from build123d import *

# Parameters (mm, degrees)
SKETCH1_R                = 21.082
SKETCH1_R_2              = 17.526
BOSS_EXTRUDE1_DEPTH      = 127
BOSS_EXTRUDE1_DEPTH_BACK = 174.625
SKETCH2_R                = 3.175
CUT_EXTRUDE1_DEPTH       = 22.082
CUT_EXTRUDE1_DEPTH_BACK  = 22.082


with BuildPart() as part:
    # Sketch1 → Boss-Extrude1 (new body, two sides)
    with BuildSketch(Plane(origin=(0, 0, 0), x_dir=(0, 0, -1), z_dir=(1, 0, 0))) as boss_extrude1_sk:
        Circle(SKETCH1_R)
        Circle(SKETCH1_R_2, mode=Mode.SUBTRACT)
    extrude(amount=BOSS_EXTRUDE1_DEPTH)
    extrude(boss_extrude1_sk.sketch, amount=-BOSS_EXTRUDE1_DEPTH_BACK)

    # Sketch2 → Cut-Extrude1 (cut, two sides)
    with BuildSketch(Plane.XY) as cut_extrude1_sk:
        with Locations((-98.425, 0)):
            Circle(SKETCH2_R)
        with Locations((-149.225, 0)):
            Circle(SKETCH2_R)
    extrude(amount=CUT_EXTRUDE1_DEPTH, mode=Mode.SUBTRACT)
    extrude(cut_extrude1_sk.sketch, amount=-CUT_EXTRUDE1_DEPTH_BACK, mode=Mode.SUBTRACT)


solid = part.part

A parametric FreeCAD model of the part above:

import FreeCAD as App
import Part
import Sketcher
from FreeCAD import Vector
Q = App.Units.Quantity

doc = App.newDocument("Part")
params = doc.addObject("Spreadsheet::Sheet", "Params")
for row, (alias, value) in enumerate([
    ("sketch1_diameter", "1.66 in"),
    ("sketch1_diameter2", "1.38 in"),
    ("pad1_length", "5 in"),
    ("pad1_length2", "6.875 in"),
    ("sketch2_diameter", "0.25 in"),
], start=1):
    params.set(f"A{row}", alias)
    params.set(f"B{row}", "=" + value)
    params.setAlias(f"B{row}", alias)

body = doc.addObject("PartDesign::Body", "Body")

sketch1 = body.newObject("Sketcher::SketchObject", "Sketch")
sketch1.AttachmentSupport = (doc.getObject("YZ_Plane"), [""])
sketch1.MapMode = "FlatFace"
sketch1.addGeometry([
    Part.Circle(Vector(0, 0, 0), Vector(0, 0, 1), 21.082),
    Part.Circle(Vector(0, 0, 0), Vector(0, 0, 1), 17.526),
], False)
sketch1.addConstraint([
    Sketcher.Constraint("Coincident", 0, 3, -1, 1),
    Sketcher.Constraint("Coincident", 1, 3, -1, 1),
    Sketcher.Constraint("Diameter", 0, Q("1.66 in")),
    Sketcher.Constraint("Diameter", 1, Q("1.38 in")),
])
sketch1.setExpression("Constraints[2]", "Params.sketch1_diameter")
sketch1.setExpression("Constraints[3]", "Params.sketch1_diameter2")
pad1 = body.newObject("PartDesign::Pad", "Pad")
pad1.Profile = sketch1
pad1.Type = "TwoLengths"
pad1.setExpression("Length", "Params.pad1_length")
pad1.setExpression("Length2", "Params.pad1_length2")

sketch2 = body.newObject("Sketcher::SketchObject", "Sketch001")
sketch2.AttachmentSupport = (doc.getObject("XY_Plane"), [""])
sketch2.MapMode = "FlatFace"
sketch2.addGeometry([
    Part.Circle(Vector(-98.425, 0, 0), Vector(0, 0, 1), 3.175),
    Part.Circle(Vector(-149.225, 0, 0), Vector(0, 0, 1), 3.175),
], False)
sketch2.addConstraint([
    Sketcher.Constraint("Equal", 0, 1),
    Sketcher.Constraint("PointOnObject", 0, 3, -1),
    Sketcher.Constraint("PointOnObject", 1, 3, -1),
    Sketcher.Constraint("Diameter", 0, Q("0.25 in")),
    Sketcher.Constraint("DistanceX", 1, 3, 0, 3, Q("2 in")),
    Sketcher.Constraint("DistanceX", 0, 3, -1, 1, Q("3.875 in")),
])
sketch2.setExpression("Constraints[3]", "Params.sketch2_diameter")
pocket1 = body.newObject("PartDesign::Pocket", "Pocket")
pocket1.Profile = sketch2
pocket1.Type = "ThroughAll"
pocket1.Midplane = True

doc.recompute()
